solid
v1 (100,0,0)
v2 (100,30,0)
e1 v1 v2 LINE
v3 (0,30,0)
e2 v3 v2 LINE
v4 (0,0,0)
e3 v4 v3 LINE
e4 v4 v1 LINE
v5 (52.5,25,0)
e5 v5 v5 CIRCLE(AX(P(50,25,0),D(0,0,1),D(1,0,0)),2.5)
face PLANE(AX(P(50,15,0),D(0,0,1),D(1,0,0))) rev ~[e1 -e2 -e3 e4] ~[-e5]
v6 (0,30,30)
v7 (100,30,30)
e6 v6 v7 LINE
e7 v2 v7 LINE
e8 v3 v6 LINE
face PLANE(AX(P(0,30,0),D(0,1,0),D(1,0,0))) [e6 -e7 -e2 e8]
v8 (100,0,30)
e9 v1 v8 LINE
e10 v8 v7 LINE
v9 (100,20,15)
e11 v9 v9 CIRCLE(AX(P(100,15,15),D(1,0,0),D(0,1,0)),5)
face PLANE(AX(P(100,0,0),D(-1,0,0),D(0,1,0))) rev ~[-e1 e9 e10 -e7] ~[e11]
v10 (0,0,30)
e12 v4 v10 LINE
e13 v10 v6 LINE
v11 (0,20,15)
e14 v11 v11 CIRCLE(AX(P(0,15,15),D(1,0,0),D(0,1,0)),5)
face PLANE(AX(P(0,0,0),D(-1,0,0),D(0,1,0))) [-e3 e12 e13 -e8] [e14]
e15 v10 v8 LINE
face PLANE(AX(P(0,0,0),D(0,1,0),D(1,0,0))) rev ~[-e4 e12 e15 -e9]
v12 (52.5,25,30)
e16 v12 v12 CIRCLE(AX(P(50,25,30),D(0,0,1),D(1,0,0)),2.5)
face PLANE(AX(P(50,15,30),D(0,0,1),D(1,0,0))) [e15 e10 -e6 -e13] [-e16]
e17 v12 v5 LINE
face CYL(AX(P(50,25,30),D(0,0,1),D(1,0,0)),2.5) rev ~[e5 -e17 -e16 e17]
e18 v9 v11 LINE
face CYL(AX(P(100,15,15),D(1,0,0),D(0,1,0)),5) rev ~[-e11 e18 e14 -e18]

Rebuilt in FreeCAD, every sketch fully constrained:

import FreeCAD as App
import Part
import Sketcher

V = App.Vector

doc = App.newDocument("Part")
body = doc.addObject("PartDesign::Body", "Body")

# Sketch on XY plane
sketch1 = body.newObject("Sketcher::SketchObject", "Sketch")
sketch1.AttachmentSupport = (doc.getObject("XY_Plane"), [""])
sketch1.MapMode = "FlatFace"
sketch1.addGeometry(Part.LineSegment(V(0, 30, 0), V(0, 0, 0)), False)
sketch1.addGeometry(Part.LineSegment(V(0, 0, 0), V(100, 0, 0)), False)
sketch1.addGeometry(Part.LineSegment(V(100, 0, 0), V(100, 30, 0)), False)
sketch1.addGeometry(Part.LineSegment(V(100, 30, 0), V(0, 30, 0)), False)
sketch1.addConstraint(Sketcher.Constraint("Coincident", 0, 2, 1, 1))
sketch1.addConstraint(Sketcher.Constraint("Coincident", 1, 2, 2, 1))
sketch1.addConstraint(Sketcher.Constraint("Coincident", 2, 2, 3, 1))
sketch1.addConstraint(Sketcher.Constraint("Coincident", 3, 2, 0, 1))
sketch1.addConstraint(Sketcher.Constraint("Vertical", 0))
sketch1.addConstraint(Sketcher.Constraint("Horizontal", 1))
sketch1.addConstraint(Sketcher.Constraint("Vertical", 2))
sketch1.addConstraint(Sketcher.Constraint("Horizontal", 3))
sketch1.addConstraint(Sketcher.Constraint("Coincident", 0, 2, -1, 1))
sketch1.addConstraint(Sketcher.Constraint("DistanceX", 1, 1, 1, 2, 100.0))
sketch1.addConstraint(Sketcher.Constraint("DistanceY", 0, 2, 0, 1, 30.0))
pad1 = body.newObject("PartDesign::Pad", "Pad")
pad1.Profile = sketch1
pad1.Length = 30

# Sketch on XY plane
sketch2 = body.newObject("Sketcher::SketchObject", "Sketch001")
sketch2.AttachmentSupport = (doc.getObject("XY_Plane"), [""])
sketch2.MapMode = "FlatFace"
sketch2.AttachmentOffset = App.Placement(V(0, 0, 30), App.Rotation())
sketch2.addGeometry(Part.Circle(V(50, 25, 0), V(0, 0, 1), 2.5), False)
sketch2.addConstraint(Sketcher.Constraint("Diameter", 0, 5.0))
sketch2.addConstraint(Sketcher.Constraint("DistanceX", -1, 1, 0, 3, 50.0))
sketch2.addConstraint(Sketcher.Constraint("DistanceY", -1, 1, 0, 3, 25.0))
pocket1 = body.newObject("PartDesign::Pocket", "Pocket")
pocket1.Profile = sketch2
pocket1.Length = 30

# Sketch on YZ plane
sketch3 = body.newObject("Sketcher::SketchObject", "Sketch002")
sketch3.AttachmentSupport = (doc.getObject("YZ_Plane"), [""])
sketch3.MapMode = "FlatFace"
sketch3.AttachmentOffset = App.Placement(V(0, 0, 100), App.Rotation())
sketch3.addGeometry(Part.Circle(V(15, 15, 0), V(0, 0, 1), 5), False)
sketch3.addConstraint(Sketcher.Constraint("Diameter", 0, 10.0))
sketch3.addConstraint(Sketcher.Constraint("DistanceX", -1, 1, 0, 3, 15.0))
sketch3.addConstraint(Sketcher.Constraint("DistanceY", -1, 1, 0, 3, 15.0))
pocket2 = body.newObject("PartDesign::Pocket", "Pocket001")
pocket2.Profile = sketch3
pocket2.Length = 100

doc.recompute()
